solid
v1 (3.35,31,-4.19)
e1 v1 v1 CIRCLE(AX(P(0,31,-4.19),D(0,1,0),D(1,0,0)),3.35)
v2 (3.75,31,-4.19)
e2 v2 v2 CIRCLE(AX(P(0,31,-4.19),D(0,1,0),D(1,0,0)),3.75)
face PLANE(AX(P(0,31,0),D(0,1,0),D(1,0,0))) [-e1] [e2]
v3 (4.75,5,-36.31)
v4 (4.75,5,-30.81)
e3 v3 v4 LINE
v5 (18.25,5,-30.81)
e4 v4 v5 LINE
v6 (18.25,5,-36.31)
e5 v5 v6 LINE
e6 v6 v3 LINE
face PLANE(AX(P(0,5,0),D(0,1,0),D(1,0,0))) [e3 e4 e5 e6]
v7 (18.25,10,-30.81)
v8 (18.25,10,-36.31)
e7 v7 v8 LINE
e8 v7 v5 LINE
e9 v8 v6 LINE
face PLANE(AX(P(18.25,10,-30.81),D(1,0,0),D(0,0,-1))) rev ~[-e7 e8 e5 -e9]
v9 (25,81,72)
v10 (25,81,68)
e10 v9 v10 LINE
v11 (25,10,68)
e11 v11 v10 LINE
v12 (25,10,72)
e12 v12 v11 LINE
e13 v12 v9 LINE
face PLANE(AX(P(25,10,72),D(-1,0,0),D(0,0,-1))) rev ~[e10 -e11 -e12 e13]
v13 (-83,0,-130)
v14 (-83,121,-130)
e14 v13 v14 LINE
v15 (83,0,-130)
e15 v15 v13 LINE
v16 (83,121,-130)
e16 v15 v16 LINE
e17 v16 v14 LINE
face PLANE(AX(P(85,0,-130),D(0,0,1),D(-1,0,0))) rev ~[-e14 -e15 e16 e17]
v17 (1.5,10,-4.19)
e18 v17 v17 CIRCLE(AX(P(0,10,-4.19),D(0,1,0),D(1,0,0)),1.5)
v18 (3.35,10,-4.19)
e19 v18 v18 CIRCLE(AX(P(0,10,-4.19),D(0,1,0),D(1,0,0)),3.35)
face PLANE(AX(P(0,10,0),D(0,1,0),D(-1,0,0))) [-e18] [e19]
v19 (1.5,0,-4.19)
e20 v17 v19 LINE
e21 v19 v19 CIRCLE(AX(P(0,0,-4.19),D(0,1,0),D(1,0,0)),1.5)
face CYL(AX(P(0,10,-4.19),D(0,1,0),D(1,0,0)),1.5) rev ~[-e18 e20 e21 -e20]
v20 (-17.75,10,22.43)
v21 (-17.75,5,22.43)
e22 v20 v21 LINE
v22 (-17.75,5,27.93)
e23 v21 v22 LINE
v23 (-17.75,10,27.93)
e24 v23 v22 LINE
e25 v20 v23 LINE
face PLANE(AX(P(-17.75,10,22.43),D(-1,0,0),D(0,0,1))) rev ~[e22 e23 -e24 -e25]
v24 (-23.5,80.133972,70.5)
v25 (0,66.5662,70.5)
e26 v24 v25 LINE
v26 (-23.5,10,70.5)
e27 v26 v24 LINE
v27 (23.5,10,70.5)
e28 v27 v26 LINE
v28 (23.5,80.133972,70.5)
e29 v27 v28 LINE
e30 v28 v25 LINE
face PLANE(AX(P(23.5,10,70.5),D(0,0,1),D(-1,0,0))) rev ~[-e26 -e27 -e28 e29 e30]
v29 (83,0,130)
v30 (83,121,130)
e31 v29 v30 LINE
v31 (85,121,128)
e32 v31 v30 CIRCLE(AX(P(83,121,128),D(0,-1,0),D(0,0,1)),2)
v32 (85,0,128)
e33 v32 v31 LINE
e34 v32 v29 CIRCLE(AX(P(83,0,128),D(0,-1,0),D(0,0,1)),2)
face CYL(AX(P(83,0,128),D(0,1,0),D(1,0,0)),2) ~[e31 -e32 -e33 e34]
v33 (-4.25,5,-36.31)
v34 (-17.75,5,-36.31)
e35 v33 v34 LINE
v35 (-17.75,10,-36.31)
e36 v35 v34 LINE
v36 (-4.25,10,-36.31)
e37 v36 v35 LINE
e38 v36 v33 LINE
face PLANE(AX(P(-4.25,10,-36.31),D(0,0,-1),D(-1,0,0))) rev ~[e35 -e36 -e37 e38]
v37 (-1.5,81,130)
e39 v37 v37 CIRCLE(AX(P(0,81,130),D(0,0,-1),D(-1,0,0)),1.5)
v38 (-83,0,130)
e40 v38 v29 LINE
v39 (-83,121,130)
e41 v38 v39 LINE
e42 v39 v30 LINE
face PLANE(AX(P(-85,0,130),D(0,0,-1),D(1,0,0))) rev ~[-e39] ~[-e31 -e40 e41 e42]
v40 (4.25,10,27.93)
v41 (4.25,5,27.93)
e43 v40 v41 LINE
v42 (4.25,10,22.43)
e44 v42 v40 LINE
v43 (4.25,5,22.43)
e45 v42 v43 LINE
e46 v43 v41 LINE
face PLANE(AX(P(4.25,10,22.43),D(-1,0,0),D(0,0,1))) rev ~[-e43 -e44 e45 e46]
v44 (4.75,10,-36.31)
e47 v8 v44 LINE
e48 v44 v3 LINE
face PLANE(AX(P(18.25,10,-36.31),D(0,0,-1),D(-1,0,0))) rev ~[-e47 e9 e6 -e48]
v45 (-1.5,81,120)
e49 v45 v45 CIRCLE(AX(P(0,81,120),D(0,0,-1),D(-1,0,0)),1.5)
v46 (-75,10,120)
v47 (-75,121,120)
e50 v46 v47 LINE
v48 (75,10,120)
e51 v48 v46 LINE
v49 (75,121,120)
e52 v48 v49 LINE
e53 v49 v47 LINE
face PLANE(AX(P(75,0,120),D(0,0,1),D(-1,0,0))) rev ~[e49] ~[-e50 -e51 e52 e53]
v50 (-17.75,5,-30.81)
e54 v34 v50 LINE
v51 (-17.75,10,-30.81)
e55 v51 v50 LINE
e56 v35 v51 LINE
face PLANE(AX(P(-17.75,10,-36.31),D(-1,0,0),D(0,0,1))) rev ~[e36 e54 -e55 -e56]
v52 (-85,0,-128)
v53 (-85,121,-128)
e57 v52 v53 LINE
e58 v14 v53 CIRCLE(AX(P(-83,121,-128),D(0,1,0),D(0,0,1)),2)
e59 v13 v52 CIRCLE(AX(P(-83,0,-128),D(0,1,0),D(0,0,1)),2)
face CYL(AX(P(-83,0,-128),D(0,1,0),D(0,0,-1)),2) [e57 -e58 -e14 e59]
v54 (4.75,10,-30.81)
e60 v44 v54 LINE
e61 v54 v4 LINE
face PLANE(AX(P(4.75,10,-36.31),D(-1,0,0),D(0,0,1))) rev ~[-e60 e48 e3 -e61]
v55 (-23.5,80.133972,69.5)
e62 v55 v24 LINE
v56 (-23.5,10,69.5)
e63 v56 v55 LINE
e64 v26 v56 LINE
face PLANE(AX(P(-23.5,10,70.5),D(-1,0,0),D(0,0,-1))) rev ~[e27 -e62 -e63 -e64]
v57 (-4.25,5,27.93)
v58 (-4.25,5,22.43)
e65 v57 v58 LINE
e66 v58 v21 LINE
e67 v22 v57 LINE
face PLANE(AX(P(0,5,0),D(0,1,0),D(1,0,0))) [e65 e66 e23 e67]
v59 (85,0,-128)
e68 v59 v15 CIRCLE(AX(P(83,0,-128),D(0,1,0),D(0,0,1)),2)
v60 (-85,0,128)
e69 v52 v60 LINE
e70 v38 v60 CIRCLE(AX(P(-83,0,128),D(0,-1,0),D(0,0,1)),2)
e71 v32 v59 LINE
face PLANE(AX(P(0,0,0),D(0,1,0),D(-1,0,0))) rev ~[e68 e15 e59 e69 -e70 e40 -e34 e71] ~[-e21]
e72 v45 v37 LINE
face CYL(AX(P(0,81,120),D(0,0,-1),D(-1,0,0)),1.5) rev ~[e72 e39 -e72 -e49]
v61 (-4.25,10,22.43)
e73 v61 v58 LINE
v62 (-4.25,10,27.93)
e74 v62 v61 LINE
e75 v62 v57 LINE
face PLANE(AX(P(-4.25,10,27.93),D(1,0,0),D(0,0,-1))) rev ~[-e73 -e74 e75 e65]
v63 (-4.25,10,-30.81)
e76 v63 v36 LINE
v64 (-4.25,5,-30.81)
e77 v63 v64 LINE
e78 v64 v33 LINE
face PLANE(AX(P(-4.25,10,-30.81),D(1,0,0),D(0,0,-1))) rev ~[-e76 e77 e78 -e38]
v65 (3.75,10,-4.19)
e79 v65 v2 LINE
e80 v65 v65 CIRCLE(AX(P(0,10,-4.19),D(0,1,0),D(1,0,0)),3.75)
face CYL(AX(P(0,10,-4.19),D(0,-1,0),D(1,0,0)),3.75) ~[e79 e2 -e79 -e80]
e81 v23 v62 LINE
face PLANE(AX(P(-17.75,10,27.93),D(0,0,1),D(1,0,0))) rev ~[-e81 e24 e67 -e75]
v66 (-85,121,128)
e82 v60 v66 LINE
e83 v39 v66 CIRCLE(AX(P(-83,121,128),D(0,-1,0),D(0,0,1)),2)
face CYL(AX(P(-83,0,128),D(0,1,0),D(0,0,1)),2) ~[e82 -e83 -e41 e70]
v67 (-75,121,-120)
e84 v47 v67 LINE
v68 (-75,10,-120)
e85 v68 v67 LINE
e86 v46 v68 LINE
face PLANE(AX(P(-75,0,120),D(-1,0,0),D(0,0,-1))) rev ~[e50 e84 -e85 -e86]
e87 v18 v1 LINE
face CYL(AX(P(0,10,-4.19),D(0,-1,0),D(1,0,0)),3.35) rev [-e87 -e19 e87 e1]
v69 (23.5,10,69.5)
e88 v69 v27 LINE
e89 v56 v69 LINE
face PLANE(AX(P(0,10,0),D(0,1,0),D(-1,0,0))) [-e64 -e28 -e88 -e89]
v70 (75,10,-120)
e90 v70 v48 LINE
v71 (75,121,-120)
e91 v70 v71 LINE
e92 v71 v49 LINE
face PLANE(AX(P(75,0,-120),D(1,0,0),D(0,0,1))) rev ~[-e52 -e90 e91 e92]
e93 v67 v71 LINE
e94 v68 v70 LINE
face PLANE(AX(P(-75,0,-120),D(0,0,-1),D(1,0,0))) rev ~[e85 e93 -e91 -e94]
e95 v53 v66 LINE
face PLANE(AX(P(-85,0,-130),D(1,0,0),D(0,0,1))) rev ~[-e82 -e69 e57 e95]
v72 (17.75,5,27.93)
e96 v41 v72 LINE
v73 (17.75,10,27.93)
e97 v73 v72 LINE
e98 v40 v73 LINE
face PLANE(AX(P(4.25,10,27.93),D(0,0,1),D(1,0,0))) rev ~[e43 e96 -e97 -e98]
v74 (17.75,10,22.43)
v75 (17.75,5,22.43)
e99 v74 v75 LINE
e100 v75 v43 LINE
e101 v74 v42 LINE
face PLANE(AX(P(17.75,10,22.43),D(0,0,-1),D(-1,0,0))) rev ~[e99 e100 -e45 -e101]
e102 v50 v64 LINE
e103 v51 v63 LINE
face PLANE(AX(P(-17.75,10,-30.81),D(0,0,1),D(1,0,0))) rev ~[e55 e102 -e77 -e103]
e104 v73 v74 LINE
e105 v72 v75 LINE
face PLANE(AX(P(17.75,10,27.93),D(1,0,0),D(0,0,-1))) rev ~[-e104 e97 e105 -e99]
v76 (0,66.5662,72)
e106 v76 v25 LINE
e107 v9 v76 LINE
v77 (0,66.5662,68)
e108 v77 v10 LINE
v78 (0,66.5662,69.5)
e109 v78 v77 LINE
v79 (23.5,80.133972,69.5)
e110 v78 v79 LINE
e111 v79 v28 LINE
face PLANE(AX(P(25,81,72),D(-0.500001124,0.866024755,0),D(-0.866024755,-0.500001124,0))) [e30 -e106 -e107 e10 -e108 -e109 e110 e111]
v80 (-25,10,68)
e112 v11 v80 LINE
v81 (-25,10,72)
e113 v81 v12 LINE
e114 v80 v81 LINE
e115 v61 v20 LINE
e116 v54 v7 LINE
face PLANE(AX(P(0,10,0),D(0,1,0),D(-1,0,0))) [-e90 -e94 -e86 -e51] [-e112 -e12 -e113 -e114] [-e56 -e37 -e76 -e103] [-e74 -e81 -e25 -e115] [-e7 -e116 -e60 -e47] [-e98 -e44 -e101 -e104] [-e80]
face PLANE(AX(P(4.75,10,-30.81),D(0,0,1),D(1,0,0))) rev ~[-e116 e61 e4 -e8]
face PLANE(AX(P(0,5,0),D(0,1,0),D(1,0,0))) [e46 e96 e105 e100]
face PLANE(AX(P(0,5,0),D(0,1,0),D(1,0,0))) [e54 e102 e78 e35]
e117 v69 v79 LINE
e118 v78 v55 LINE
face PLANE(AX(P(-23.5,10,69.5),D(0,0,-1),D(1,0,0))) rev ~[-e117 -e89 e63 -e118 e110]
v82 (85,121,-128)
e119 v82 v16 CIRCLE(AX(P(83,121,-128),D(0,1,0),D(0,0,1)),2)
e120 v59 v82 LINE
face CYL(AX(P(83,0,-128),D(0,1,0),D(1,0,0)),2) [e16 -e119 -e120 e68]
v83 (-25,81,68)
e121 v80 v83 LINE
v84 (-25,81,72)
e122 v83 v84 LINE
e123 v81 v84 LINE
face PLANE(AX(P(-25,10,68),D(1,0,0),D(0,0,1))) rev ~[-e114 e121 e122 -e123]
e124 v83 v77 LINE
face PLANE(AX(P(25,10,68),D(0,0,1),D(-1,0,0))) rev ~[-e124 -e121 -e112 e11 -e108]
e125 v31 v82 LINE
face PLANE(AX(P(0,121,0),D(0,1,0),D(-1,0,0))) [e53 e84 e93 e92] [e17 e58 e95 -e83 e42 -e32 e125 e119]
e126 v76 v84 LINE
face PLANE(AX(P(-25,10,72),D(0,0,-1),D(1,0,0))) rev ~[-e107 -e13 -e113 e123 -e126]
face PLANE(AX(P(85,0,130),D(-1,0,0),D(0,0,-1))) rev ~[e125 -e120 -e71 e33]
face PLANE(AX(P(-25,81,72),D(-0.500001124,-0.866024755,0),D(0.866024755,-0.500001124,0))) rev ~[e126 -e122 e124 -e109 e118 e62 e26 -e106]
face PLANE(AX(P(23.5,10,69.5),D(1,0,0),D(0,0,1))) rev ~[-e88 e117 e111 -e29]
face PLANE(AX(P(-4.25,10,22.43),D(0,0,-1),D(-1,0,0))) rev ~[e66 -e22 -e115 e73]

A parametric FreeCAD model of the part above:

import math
import FreeCAD as App
import Part
import Sketcher
Q = App.Units.Quantity


def edges_at(feature, points):
    """Names of the edges that pass closest to the given points."""
    edges = feature.Shape.Edges
    near = lambda p: min(range(len(edges)), key=lambda i: edges[i].distToShape(Part.Vertex(*p))[0])
    return sorted({f"Edge{near(p) + 1}" for p in points})


def add_polygon(sketch, points):
    """Adds a closed chain of lines whose ends are joined by coincident constraints."""
    first, n = sketch.GeometryCount, len(points)
    for a, b in zip(points, points[1:] + points[:1]):
        sketch.addGeometry(Part.LineSegment(App.Vector(*a, 0), App.Vector(*b, 0)), False)
    for i in range(n):
        sketch.addConstraint(Sketcher.Constraint("Coincident", first + i, 2, first + (i + 1) % n, 1))

doc = App.newDocument("Part")
body = doc.addObject("PartDesign::Body", "Body")

# Sketch on XZ plane
sketch1 = body.newObject("Sketcher::SketchObject", "Sketch")
sketch1.AttachmentSupport = (doc.getObject("XZ_Plane"), [""])
sketch1.MapMode = "FlatFace"
add_polygon(sketch1, [(85, 130), (85, -130), (-85, -130), (-85, 130)])  # lines 0-3
add_polygon(sketch1, [(75, 120), (-75, 120), (-75, -120), (75, -120)])  # lines 4-7
sketch1.addConstraint(Sketcher.Constraint("Vertical", 0))
sketch1.addConstraint(Sketcher.Constraint("Horizontal", 1))
sketch1.addConstraint(Sketcher.Constraint("Vertical", 2))
sketch1.addConstraint(Sketcher.Constraint("Horizontal", 3))
sketch1.addConstraint(Sketcher.Constraint("Horizontal", 4))
sketch1.addConstraint(Sketcher.Constraint("Vertical", 5))
sketch1.addConstraint(Sketcher.Constraint("Horizontal", 6))
sketch1.addConstraint(Sketcher.Constraint("Vertical", 7))
sketch1.addConstraint(Sketcher.Constraint("Symmetric", 0, 2, 2, 2, -1, 1))
sketch1.addConstraint(Sketcher.Constraint("Symmetric", 4, 2, 6, 2, -1, 1))
sketch1.addConstraint(Sketcher.Constraint("DistanceX", 1, 2, 1, 1, 170.0))
sketch1.addConstraint(Sketcher.Constraint("DistanceY", 0, 2, 0, 1, 260.0))
sketch1.addConstraint(Sketcher.Constraint("DistanceX", 2, 2, 4, 2, 10.0))
sketch1.addConstraint(Sketcher.Constraint("DistanceY", 4, 2, 2, 2, 10.0))
pad1 = body.newObject("PartDesign::Pad", "Pad")
pad1.Profile = sketch1
pad1.Length = 121
pad1.Reversed = True

# Sketch on XZ plane
sketch2 = body.newObject("Sketcher::SketchObject", "Sketch001")
sketch2.AttachmentSupport = (doc.getObject("XZ_Plane"), [""])
sketch2.MapMode = "FlatFace"
add_polygon(sketch2, [(-75, -120), (-75, 120), (75, 120), (75, -120)])  # lines 0-3
sketch2.addConstraint(Sketcher.Constraint("Vertical", 0))
sketch2.addConstraint(Sketcher.Constraint("Horizontal", 1))
sketch2.addConstraint(Sketcher.Constraint("Vertical", 2))
sketch2.addConstraint(Sketcher.Constraint("Horizontal", 3))
sketch2.addConstraint(Sketcher.Constraint("Symmetric", 0, 2, 2, 2, -1, 1))
sketch2.addConstraint(Sketcher.Constraint("DistanceX", 1, 1, 1, 2, 150.0))
sketch2.addConstraint(Sketcher.Constraint("DistanceY", 0, 1, 0, 2, 240.0))
pad2 = body.newObject("PartDesign::Pad", "Pad001")
pad2.Profile = sketch2
pad2.Length = 10
pad2.Reversed = True

# Sketch on XZ plane
sketch3 = body.newObject("Sketcher::SketchObject", "Sketch002")
sketch3.AttachmentSupport = (doc.getObject("XZ_Plane"), [""])
sketch3.MapMode = "FlatFace"
sketch3.AttachmentOffset = App.Placement(App.Vector(0, 0, -10), App.Rotation())
sketch3.addGeometry(Part.Circle(App.Vector(0, -4.2, 0), App.Vector(0, 0, 1), 3.8), False)
sketch3.addGeometry(Part.Circle(App.Vector(0, -4.2, 0), App.Vector(0, 0, 1), 3.4), False)
sketch3.addConstraint(Sketcher.Constraint("Coincident", 1, 3, 0, 3))
sketch3.addConstraint(Sketcher.Constraint("PointOnObject", 0, 3, -2))
sketch3.addConstraint(Sketcher.Constraint("Diameter", 0, 7.5))
sketch3.addConstraint(Sketcher.Constraint("Diameter", 1, 6.7))
sketch3.addConstraint(Sketcher.Constraint("DistanceY", 0, 3, -1, 1, 4.19))
pad3 = body.newObject("PartDesign::Pad", "Pad002")
pad3.Profile = sketch3
pad3.Length = 21
pad3.Reversed = True

# Sketch on XZ plane
sketch4 = body.newObject("Sketcher::SketchObject", "Sketch003")
sketch4.AttachmentSupport = (doc.getObject("XZ_Plane"), [""])
sketch4.MapMode = "FlatFace"
sketch4.AttachmentOffset = App.Placement(App.Vector(0, 0, -10), App.Rotation())
sketch4.addGeometry(Part.Circle(App.Vector(0, -4.2, 0), App.Vector(0, 0, 1), 1.5), False)
sketch4.addConstraint(Sketcher.Constraint("PointOnObject", 0, 3, -2))
sketch4.addConstraint(Sketcher.Constraint("Diameter", 0, 3.0))
sketch4.addConstraint(Sketcher.Constraint("DistanceY", 0, 3, -1, 1, 4.19))
pocket1 = body.newObject("PartDesign::Pocket", "Pocket")
pocket1.Profile = sketch4
pocket1.Length = 10
pocket1.Reversed = True

# Sketch on XZ plane
sketch5 = body.newObject("Sketcher::SketchObject", "Sketch004")
sketch5.AttachmentSupport = (doc.getObject("XZ_Plane"), [""])
sketch5.MapMode = "FlatFace"
sketch5.AttachmentOffset = App.Placement(App.Vector(0, 0, -10), App.Rotation())
add_polygon(sketch5, [(25, 72), (25, 68), (-25, 68), (-25, 72)])  # lines 0-3
add_polygon(sketch5, [(23.5, 70.5), (-23.5, 70.5), (-23.5, 69.5), (23.5, 69.5)])  # lines 4-7
sketch5.addConstraint(Sketcher.Constraint("Vertical", 0))
sketch5.addConstraint(Sketcher.Constraint("Horizontal", 1))
sketch5.addConstraint(Sketcher.Constraint("Vertical", 2))
sketch5.addConstraint(Sketcher.Constraint("Horizontal", 3))
sketch5.addConstraint(Sketcher.Constraint("Horizontal", 4))
sketch5.addConstraint(Sketcher.Constraint("Vertical", 5))
sketch5.addConstraint(Sketcher.Constraint("Horizontal", 6))
sketch5.addConstraint(Sketcher.Constraint("Vertical", 7))
sketch5.addConstraint(Sketcher.Constraint("DistanceX", 1, 2, 1, 1, 50.0))
sketch5.addConstraint(Sketcher.Constraint("DistanceY", 0, 2, 0, 1, 4.0))
sketch5.addConstraint(Sketcher.Constraint("DistanceX", 2, 2, 4, 2, 1.5))
sketch5.addConstraint(Sketcher.Constraint("DistanceY", 4, 2, 2, 2, 1.5))
sketch5.addConstraint(Sketcher.Constraint("DistanceY", 1, 2, 5, 2, 1.5))
sketch5.addConstraint(Sketcher.Constraint("DistanceX", 6, 2, 0, 2, 1.5))
sketch5.addConstraint(Sketcher.Constraint("DistanceX", -1, 1, 0, 2, 25.0))
sketch5.addConstraint(Sketcher.Constraint("DistanceY", -1, 1, 0, 2, 68.0))
pad4 = body.newObject("PartDesign::Pad", "Pad003")
pad4.Profile = sketch5
pad4.Length = 71
pad4.Reversed = True

# Sketch on XY plane
sketch6 = body.newObject("Sketcher::SketchObject", "Sketch005")
sketch6.AttachmentSupport = (doc.getObject("XY_Plane"), [""])
sketch6.MapMode = "FlatFace"
sketch6.AttachmentOffset = App.Placement(App.Vector(0, 0, 72), App.Rotation())
sketch6.addGeometry(Part.LineSegment(App.Vector(-24, 80, 0), App.Vector(0, 67, 0)), False)
sketch6.addGeometry(Part.LineSegment(App.Vector(0, 67, 0), App.Vector(24, 80, 0)), False)
sketch6.addGeometry(Part.ArcOfCircle(Part.Circle(App.Vector(0, 67, 0), App.Vector(0, 0, 1), 28), math.radians(30), math.radians(150)), False)
sketch6.addConstraint(Sketcher.Constraint("Coincident", 0, 2, 1, 1))
sketch6.addConstraint(Sketcher.Constraint("Coincident", 1, 2, 2, 1))
sketch6.addConstraint(Sketcher.Constraint("Coincident", 2, 2, 0, 1))
sketch6.addConstraint(Sketcher.Constraint("Coincident", 0, 2, 2, 3))
sketch6.addConstraint(Sketcher.Constraint("Symmetric", 1, 2, 2, 2, -2))
sketch6.addConstraint(Sketcher.Constraint("Angle", 0, Q("-30 deg")))
sketch6.addConstraint(Sketcher.Constraint("Radius", 2, 27.5787))
sketch6.addConstraint(Sketcher.Constraint("DistanceY", -1, 1, 2, 3, 66.5662))
pad5 = body.newObject("PartDesign::Pad", "Pad004")
pad5.Profile = sketch6
pad5.Length = 4
pad5.Reversed = True

# Sketch on XY plane
sketch7 = body.newObject("Sketcher::SketchObject", "Sketch006")
sketch7.AttachmentSupport = (doc.getObject("XY_Plane"), [""])
sketch7.MapMode = "FlatFace"
sketch7.AttachmentOffset = App.Placement(App.Vector(0, 0, 72), App.Rotation())
sketch7.addGeometry(Part.LineSegment(App.Vector(-24, 80, 0), App.Vector(0, 67, 0)), False)
sketch7.addGeometry(Part.LineSegment(App.Vector(0, 67, 0), App.Vector(24, 80, 0)), False)
sketch7.addGeometry(Part.ArcOfCircle(Part.Circle(App.Vector(0, 67, 0), App.Vector(0, 0, 1), 28), math.radians(30), math.radians(150)), False)
sketch7.addConstraint(Sketcher.Constraint("Coincident", 0, 2, 1, 1))
sketch7.addConstraint(Sketcher.Constraint("Coincident", 1, 2, 2, 1))
sketch7.addConstraint(Sketcher.Constraint("Coincident", 2, 2, 0, 1))
sketch7.addConstraint(Sketcher.Constraint("Coincident", 0, 2, 2, 3))
sketch7.addConstraint(Sketcher.Constraint("Symmetric", 1, 2, 2, 2, -2))
sketch7.addConstraint(Sketcher.Constraint("Angle", 0, Q("-30 deg")))
sketch7.addConstraint(Sketcher.Constraint("Radius", 2, 27.5787))
sketch7.addConstraint(Sketcher.Constraint("DistanceY", -1, 1, 2, 3, 66.5662))
pocket2 = body.newObject("PartDesign::Pocket", "Pocket001")
pocket2.Profile = sketch7
pocket2.Length = 4

# Sketch on XY plane
sketch8 = body.newObject("Sketcher::SketchObject", "Sketch007")
sketch8.AttachmentSupport = (doc.getObject("XY_Plane"), [""])
sketch8.MapMode = "FlatFace"
sketch8.AttachmentOffset = App.Placement(App.Vector(0, 0, 72), App.Rotation())
sketch8.addGeometry(Part.LineSegment(App.Vector(-23.5, 81, 0), App.Vector(-25, 81, 0)), False)
sketch8.addGeometry(Part.LineSegment(App.Vector(-25, 81, 0), App.Vector(-23.9, 80.4, 0)), False)
sketch8.addGeometry(Part.ArcOfCircle(Part.Circle(App.Vector(0, 66.6, 0), App.Vector(0, 0, 1), 27.6), math.radians(148.44), math.radians(150)), False)
sketch8.addConstraint(Sketcher.Constraint("Coincident", 0, 2, 1, 1))
sketch8.addConstraint(Sketcher.Constraint("Coincident", 1, 2, 2, 2))
sketch8.addConstraint(Sketcher.Constraint("Coincident", 2, 1, 0, 1))
sketch8.addConstraint(Sketcher.Constraint("Horizontal", 0))
sketch8.addConstraint(Sketcher.Constraint("PointOnObject", 2, 3, -2))
sketch8.addConstraint(Sketcher.Constraint("Angle", 1, Q("-30 deg")))
sketch8.addConstraint(Sketcher.Constraint("DistanceX", 0, 2, 0, 1, 1.5))
sketch8.addConstraint(Sketcher.Constraint("DistanceX", 0, 2, -1, 1, 25.0))
sketch8.addConstraint(Sketcher.Constraint("DistanceY", -1, 1, 0, 2, 81.0))
sketch8.addConstraint(Sketcher.Constraint("Radius", 2, 27.5787))
pocket3 = body.newObject("PartDesign::Pocket", "Pocket002")
pocket3.Profile = sketch8
pocket3.Length = 4

# Sketch on XY plane
sketch9 = body.newObject("Sketcher::SketchObject", "Sketch008")
sketch9.AttachmentSupport = (doc.getObject("XY_Plane"), [""])
sketch9.MapMode = "FlatFace"
sketch9.AttachmentOffset = App.Placement(App.Vector(0, 0, 72), App.Rotation())
sketch9.addGeometry(Part.LineSegment(App.Vector(25, 81, 0), App.Vector(23.5, 81, 0)), False)
sketch9.addGeometry(Part.ArcOfCircle(Part.Circle(App.Vector(0, 66.6, 0), App.Vector(0, 0, 1), 27.6), math.radians(30), math.radians(31.56)), False)
sketch9.addGeometry(Part.LineSegment(App.Vector(23.9, 80.4, 0), App.Vector(25, 81, 0)), False)
sketch9.addConstraint(Sketcher.Constraint("Coincident", 0, 2, 1, 2))
sketch9.addConstraint(Sketcher.Constraint("Coincident", 1, 1, 2, 1))
sketch9.addConstraint(Sketcher.Constraint("Coincident", 2, 2, 0, 1))
sketch9.addConstraint(Sketcher.Constraint("Horizontal", 0))
sketch9.addConstraint(Sketcher.Constraint("PointOnObject", 1, 3, -2))
sketch9.addConstraint(Sketcher.Constraint("Angle", 2, Q("30 deg")))
sketch9.addConstraint(Sketcher.Constraint("DistanceX", 0, 2, 0, 1, 1.5))
sketch9.addConstraint(Sketcher.Constraint("DistanceY", -1, 1, 0, 2, 81.0))
sketch9.addConstraint(Sketcher.Constraint("DistanceX", -1, 1, 2, 2, 25.0))
sketch9.addConstraint(Sketcher.Constraint("Radius", 1, 27.5787))
pocket4 = body.newObject("PartDesign::Pocket", "Pocket003")
pocket4.Profile = sketch9
pocket4.Length = 4
doc.recompute()

fillet = body.newObject("PartDesign::Fillet", "Fillet")
fillet.Base = (pocket4, edges_at(pocket4, [
    (85, 60.5, 130),
    (-85, 60.5, 130),
    (85, 60.5, -130),
    (-85, 60.5, -130),
]))
fillet.Radius = 2

# Sketch on XY plane
sketch10 = body.newObject("Sketcher::SketchObject", "Sketch009")
sketch10.AttachmentSupport = (doc.getObject("XY_Plane"), [""])
sketch10.MapMode = "FlatFace"
sketch10.AttachmentOffset = App.Placement(App.Vector(0, 0, 120), App.Rotation())
sketch10.addGeometry(Part.Circle(App.Vector(0, 81, 0), App.Vector(0, 0, 1), 1.5), False)
sketch10.addConstraint(Sketcher.Constraint("PointOnObject", 0, 3, -2))
sketch10.addConstraint(Sketcher.Constraint("Diameter", 0, 3.0))
sketch10.addConstraint(Sketcher.Constraint("DistanceY", -1, 1, 0, 3, 81.0))
pocket5 = body.newObject("PartDesign::Pocket", "Pocket004")
pocket5.Profile = sketch10
pocket5.Type = "ThroughAll"
pocket5.Reversed = True

# Sketch on XZ plane
sketch11 = body.newObject("Sketcher::SketchObject", "Sketch010")
sketch11.AttachmentSupport = (doc.getObject("XZ_Plane"), [""])
sketch11.MapMode = "FlatFace"
sketch11.AttachmentOffset = App.Placement(App.Vector(0, 0, -10), App.Rotation())
add_polygon(sketch11, [(-4, 28), (-4, 22), (-18, 22), (-18, 28)])  # lines 0-3
add_polygon(sketch11, [(18, 28), (18, 22), (4, 22), (4, 28)])  # lines 4-7
add_polygon(sketch11, [(-4, -31), (-4, -36), (-18, -36), (-18, -31)])  # lines 8-11
add_polygon(sketch11, [(18, -31), (18, -36), (5, -36), (5, -31)])  # lines 12-15
sketch11.addConstraint(Sketcher.Constraint("Vertical", 0))
sketch11.addConstraint(Sketcher.Constraint("Horizontal", 1))
sketch11.addConstraint(Sketcher.Constraint("Vertical", 2))
sketch11.addConstraint(Sketcher.Constraint("Horizontal", 3))
sketch11.addConstraint(Sketcher.Constraint("Vertical", 4))
sketch11.addConstraint(Sketcher.Constraint("Horizontal", 5))
sketch11.addConstraint(Sketcher.Constraint("Vertical", 6))
sketch11.addConstraint(Sketcher.Constraint("Horizontal", 7))
sketch11.addConstraint(Sketcher.Constraint("Vertical", 8))
sketch11.addConstraint(Sketcher.Constraint("Horizontal", 9))
sketch11.addConstraint(Sketcher.Constraint("Vertical", 10))
sketch11.addConstraint(Sketcher.Constraint("Horizontal", 11))
sketch11.addConstraint(Sketcher.Constraint("Vertical", 12))
sketch11.addConstraint(Sketcher.Constraint("Horizontal", 13))
sketch11.addConstraint(Sketcher.Constraint("Vertical", 14))
sketch11.addConstraint(Sketcher.Constraint("Horizontal", 15))
sketch11.addConstraint(Sketcher.Constraint("Symmetric", 1, 2, 4, 2, -2))
sketch11.addConstraint(Sketcher.Constraint("Symmetric", 3, 2, 6, 2, -2))
sketch11.addConstraint(Sketcher.Constraint("Horizontal", 9, 2, 12, 2))
sketch11.addConstraint(Sketcher.Constraint("Horizontal", 11, 2, 14, 2))
sketch11.addConstraint(Sketcher.Constraint("Vertical", 3, 2, 8, 2))
sketch11.addConstraint(Sketcher.Constraint("Vertical", 2, 2, 9, 2))
sketch11.addConstraint(Sketcher.Constraint("Equal", 11, 13))
sketch11.addConstraint(Sketcher.Constraint("Equal", 6, 8))
sketch11.addConstraint(Sketcher.Constraint("DistanceX", 1, 2, 1, 1, 13.5))
sketch11.addConstraint(Sketcher.Constraint("DistanceY", 0, 2, 0, 1, 5.5))
sketch11.addConstraint(Sketcher.Constraint("DistanceX", 0, 2, 4, 2, 22.0))
sketch11.addConstraint(Sketcher.Constraint("DistanceX", 9, 2, 12, 2, 36.0))
sketch11.addConstraint(Sketcher.Constraint("DistanceY", -1, 1, 0, 2, 22.43))
sketch11.addConstraint(Sketcher.Constraint("DistanceY", 8, 2, -1, 1, 36.31))
pocket6 = body.newObject("PartDesign::Pocket", "Pocket005")
pocket6.Profile = sketch11
pocket6.Length = 5
pocket6.Reversed = True

doc.recompute()
